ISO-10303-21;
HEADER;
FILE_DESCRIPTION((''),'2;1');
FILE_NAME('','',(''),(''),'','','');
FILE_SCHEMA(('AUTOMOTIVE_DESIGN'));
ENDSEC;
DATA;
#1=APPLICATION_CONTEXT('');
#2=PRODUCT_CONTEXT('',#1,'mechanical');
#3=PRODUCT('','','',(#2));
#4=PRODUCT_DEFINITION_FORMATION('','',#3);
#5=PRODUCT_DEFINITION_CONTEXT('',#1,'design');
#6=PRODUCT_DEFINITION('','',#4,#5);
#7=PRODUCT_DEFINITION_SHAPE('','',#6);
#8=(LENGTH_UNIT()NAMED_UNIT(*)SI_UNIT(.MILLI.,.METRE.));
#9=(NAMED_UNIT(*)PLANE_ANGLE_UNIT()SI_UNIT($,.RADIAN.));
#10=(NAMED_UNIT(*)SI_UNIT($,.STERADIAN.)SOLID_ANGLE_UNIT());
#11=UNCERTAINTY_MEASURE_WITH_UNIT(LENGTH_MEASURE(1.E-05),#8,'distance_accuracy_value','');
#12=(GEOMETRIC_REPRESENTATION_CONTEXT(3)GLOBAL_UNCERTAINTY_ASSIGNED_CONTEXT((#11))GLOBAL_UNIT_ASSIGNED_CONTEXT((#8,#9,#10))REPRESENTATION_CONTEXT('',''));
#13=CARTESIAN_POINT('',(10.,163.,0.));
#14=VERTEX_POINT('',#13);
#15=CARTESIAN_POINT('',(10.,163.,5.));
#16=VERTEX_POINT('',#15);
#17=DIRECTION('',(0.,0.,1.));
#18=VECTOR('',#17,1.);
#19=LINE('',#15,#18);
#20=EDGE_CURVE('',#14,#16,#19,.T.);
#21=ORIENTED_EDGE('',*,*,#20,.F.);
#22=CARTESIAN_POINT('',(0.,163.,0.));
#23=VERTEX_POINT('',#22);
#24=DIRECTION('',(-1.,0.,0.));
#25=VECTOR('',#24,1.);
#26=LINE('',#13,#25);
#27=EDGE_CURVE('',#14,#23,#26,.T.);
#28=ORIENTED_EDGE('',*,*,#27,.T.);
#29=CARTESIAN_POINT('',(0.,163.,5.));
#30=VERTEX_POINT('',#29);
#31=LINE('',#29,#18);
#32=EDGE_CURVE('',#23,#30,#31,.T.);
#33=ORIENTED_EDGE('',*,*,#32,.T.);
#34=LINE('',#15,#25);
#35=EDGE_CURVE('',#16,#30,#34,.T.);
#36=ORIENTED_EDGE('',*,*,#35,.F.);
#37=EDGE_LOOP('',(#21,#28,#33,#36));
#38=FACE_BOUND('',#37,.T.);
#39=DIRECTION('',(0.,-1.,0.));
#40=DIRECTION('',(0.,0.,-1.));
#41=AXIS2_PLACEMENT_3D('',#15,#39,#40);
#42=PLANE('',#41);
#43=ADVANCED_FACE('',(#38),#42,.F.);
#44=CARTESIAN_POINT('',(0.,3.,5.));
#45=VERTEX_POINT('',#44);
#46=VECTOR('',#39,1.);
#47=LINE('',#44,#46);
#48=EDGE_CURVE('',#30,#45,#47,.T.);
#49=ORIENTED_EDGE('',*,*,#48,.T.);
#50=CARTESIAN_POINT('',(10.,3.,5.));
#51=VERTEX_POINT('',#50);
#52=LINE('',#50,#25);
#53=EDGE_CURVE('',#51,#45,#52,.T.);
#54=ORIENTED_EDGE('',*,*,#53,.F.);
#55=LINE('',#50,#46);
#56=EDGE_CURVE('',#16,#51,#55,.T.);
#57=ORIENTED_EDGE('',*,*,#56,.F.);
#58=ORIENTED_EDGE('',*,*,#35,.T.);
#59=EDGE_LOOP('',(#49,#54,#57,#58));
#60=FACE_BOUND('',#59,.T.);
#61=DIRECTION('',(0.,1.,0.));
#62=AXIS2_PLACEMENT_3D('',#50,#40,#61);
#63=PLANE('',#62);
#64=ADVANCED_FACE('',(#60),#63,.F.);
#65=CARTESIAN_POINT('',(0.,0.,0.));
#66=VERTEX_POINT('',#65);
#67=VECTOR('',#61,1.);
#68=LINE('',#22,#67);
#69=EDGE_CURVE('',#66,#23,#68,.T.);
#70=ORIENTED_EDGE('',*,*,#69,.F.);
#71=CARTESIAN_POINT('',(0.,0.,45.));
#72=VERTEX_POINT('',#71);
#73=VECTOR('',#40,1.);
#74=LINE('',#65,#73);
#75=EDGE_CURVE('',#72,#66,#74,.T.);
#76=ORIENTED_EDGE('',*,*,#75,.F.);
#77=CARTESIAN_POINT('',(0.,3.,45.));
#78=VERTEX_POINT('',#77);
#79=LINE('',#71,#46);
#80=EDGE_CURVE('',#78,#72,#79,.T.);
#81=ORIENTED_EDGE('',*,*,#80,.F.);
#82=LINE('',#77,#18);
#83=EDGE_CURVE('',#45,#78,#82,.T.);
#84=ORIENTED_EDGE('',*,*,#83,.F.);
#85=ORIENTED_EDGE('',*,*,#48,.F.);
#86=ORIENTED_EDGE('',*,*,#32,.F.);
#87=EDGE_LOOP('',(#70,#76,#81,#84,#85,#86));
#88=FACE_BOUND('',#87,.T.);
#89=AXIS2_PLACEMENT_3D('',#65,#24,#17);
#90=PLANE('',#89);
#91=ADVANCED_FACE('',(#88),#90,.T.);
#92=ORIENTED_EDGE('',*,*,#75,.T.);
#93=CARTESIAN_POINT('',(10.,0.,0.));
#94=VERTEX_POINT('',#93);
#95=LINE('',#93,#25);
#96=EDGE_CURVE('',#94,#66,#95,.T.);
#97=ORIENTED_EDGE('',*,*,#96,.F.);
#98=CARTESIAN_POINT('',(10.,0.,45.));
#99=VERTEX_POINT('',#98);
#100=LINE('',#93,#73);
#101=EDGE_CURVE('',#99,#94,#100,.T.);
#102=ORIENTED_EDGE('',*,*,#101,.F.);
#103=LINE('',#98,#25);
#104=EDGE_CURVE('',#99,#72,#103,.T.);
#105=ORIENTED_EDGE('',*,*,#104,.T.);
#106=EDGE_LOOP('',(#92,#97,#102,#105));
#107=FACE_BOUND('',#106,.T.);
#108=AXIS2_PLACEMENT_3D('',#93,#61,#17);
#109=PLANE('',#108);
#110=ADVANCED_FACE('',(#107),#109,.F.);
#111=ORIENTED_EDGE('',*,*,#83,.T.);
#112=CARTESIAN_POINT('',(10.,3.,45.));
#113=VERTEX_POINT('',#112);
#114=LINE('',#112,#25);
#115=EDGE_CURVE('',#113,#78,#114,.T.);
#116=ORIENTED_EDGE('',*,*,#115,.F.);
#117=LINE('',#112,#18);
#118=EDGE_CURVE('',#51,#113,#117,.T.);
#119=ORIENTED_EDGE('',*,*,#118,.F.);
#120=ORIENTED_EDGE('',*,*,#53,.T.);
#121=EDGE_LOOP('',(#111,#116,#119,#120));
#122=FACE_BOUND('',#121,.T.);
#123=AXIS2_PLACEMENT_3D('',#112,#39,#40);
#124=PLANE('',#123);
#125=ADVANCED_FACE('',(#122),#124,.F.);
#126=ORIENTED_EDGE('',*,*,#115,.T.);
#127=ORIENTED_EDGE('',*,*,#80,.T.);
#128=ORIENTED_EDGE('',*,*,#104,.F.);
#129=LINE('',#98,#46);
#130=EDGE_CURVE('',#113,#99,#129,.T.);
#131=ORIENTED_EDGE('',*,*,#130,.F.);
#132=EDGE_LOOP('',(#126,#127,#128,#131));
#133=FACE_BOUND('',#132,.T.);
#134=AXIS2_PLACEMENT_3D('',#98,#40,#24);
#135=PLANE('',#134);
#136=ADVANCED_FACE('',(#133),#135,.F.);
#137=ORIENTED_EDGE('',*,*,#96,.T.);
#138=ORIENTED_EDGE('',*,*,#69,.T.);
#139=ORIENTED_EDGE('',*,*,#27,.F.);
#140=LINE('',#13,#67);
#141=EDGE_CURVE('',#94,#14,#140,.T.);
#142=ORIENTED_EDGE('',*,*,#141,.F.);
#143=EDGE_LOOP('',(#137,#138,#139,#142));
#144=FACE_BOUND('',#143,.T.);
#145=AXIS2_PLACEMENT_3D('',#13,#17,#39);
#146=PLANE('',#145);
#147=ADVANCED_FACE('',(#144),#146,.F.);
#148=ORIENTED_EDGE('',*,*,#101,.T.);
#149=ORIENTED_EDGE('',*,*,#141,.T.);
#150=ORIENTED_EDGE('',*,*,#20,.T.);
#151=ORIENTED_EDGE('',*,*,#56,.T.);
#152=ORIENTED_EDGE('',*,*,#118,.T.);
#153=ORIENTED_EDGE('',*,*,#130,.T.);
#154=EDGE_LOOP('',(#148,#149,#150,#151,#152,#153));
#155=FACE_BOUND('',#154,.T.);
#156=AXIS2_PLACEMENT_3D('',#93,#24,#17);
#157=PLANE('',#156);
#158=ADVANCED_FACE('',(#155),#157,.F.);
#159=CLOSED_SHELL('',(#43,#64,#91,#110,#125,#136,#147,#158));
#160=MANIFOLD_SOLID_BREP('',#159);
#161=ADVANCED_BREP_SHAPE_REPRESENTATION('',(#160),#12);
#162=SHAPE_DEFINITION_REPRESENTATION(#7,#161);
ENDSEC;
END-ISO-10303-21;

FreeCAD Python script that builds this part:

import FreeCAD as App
import Part
import Sketcher
from FreeCAD import Vector
Q = App.Units.Quantity


def add_polygon(sketch, points):
    """Adds a closed chain of lines whose ends are joined by coincident constraints."""
    first, n = sketch.GeometryCount, len(points)
    for a, b in zip(points, points[1:] + points[:1]):
        sketch.addGeometry(Part.LineSegment(App.Vector(*a, 0), App.Vector(*b, 0)), False)
    for i in range(n):
        sketch.addConstraint(Sketcher.Constraint("Coincident", first + i, 2, first + (i + 1) % n, 1))

doc = App.newDocument("Part")
body = doc.addObject("PartDesign::Body", "Body")

sketch1 = body.newObject("Sketcher::SketchObject", "Sketch")
sketch1.AttachmentSupport = (doc.getObject("YZ_Plane"), [""])
sketch1.MapMode = "FlatFace"
add_polygon(sketch1, [(0, 45), (0, 0), (163, 0), (163, 5), (3, 5), (3, 45)])
sketch1.addConstraint(Sketcher.Constraint("Vertical", 0))
sketch1.addConstraint(Sketcher.Constraint("Horizontal", 1))
sketch1.addConstraint(Sketcher.Constraint("Vertical", 2))
sketch1.addConstraint(Sketcher.Constraint("Horizontal", 3))
sketch1.addConstraint(Sketcher.Constraint("Vertical", 4))
sketch1.addConstraint(Sketcher.Constraint("Horizontal", 5))
sketch1.addConstraint(Sketcher.Constraint("Coincident", 0, 2, -1, 1))
sketch1.addConstraint(Sketcher.Constraint("DistanceX", 1, 1, 1, 2, Q("163 mm")))
sketch1.addConstraint(Sketcher.Constraint("DistanceX", 3, 2, 3, 1, Q("160 mm")))
sketch1.addConstraint(Sketcher.Constraint("DistanceY", 0, 2, 0, 1, Q("45 mm")))
sketch1.addConstraint(Sketcher.Constraint("DistanceY", 2, 1, 2, 2, Q("5 mm")))
pad1 = body.newObject("PartDesign::Pad", "Pad")
pad1.Profile = sketch1
pad1.Length = 10

doc.recompute()
